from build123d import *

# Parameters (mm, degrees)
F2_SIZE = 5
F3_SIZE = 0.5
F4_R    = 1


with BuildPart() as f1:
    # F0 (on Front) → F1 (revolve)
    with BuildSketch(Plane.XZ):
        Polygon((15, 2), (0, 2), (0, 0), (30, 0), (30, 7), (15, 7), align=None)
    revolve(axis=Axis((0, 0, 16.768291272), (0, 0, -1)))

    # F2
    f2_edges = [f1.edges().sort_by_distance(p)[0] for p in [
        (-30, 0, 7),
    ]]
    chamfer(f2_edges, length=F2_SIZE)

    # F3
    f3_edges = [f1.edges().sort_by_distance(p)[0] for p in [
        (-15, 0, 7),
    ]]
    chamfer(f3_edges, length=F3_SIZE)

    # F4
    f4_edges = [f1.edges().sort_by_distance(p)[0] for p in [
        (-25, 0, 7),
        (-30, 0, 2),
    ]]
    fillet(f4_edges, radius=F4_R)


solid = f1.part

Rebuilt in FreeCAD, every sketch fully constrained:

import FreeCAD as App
import Part
import Sketcher
from FreeCAD import Vector
Q = App.Units.Quantity


def edges_at(feature, points):
    """Names of the edges that pass closest to the given points."""
    edges = feature.Shape.Edges
    near = lambda p: min(range(len(edges)), key=lambda i: edges[i].distToShape(Part.Vertex(*p))[0])
    return sorted({f"Edge{near(p) + 1}" for p in points})

doc = App.newDocument("Part")
body = doc.addObject("PartDesign::Body", "Body")

# Sketch on XZ plane
sketch1 = doc.addObject("Sketcher::SketchObject", "Sketch")
body.addObject(sketch1)
sketch1.AttachmentSupport = (doc.XZ_Plane, [""])
sketch1.MapMode = "FlatFace"
sketch1.addGeometry([
    Part.LineSegment(Vector(15, 2, 0), Vector(0, 2, 0)),  # 0
    Part.LineSegment(Vector(0, 2, 0), Vector(0, 0, 0)),  # 1
    Part.LineSegment(Vector(0, 0, 0), Vector(30, 0, 0)),  # 2
    Part.LineSegment(Vector(30, 0, 0), Vector(30, 7, 0)),  # 3
    Part.LineSegment(Vector(30, 7, 0), Vector(15, 7, 0)),  # 4
    Part.LineSegment(Vector(15, 7, 0), Vector(15, 2, 0)),  # 5
], False)
sketch1.addConstraint([
    Sketcher.Constraint("Coincident", 0, 2, 1, 1),
    Sketcher.Constraint("Coincident", 1, 2, 2, 1),
    Sketcher.Constraint("Coincident", 2, 2, 3, 1),
    Sketcher.Constraint("Coincident", 3, 2, 4, 1),
    Sketcher.Constraint("Coincident", 4, 2, 5, 1),
    Sketcher.Constraint("Coincident", 5, 2, 0, 1),
    Sketcher.Constraint("Horizontal", 0),
    Sketcher.Constraint("Vertical", 1),
    Sketcher.Constraint("Horizontal", 2),
    Sketcher.Constraint("Vertical", 3),
    Sketcher.Constraint("Horizontal", 4),
    Sketcher.Constraint("Vertical", 5),
    Sketcher.Constraint("Coincident", 1, 2, -1, 1),
    Sketcher.Constraint("Equal", 0, 4),
    Sketcher.Constraint("DistanceX", 0, 2, 0, 1, Q("15 mm")),
    Sketcher.Constraint("DistanceY", 1, 2, 1, 1, Q("2 mm")),
    Sketcher.Constraint("DistanceY", 3, 1, 3, 2, Q("7 mm")),
])
revolution = doc.addObject("PartDesign::Revolution", "Revolution")
body.addObject(revolution)
revolution.Profile = sketch1
revolution.ReferenceAxis = (sketch1, ["V_Axis"])
revolution.Angle = 360
doc.recompute()

chamfer = doc.addObject("PartDesign::Chamfer", "Chamfer")
body.addObject(chamfer)
chamfer.Base = (revolution, edges_at(revolution, [(-30, 0, 7)]))
chamfer.Size = 5
doc.recompute()

chamfer2 = doc.addObject("PartDesign::Chamfer", "Chamfer001")
body.addObject(chamfer2)
chamfer2.Base = (chamfer, edges_at(chamfer, [(-15, 0, 7)]))
chamfer2.Size = 0.5
doc.recompute()

fillet = doc.addObject("PartDesign::Fillet", "Fillet")
body.addObject(fillet)
fillet.Base = (chamfer2, edges_at(chamfer2, [(-25, 0, 7), (-30, 0, 2)]))
fillet.Radius = 1

doc.recompute()
